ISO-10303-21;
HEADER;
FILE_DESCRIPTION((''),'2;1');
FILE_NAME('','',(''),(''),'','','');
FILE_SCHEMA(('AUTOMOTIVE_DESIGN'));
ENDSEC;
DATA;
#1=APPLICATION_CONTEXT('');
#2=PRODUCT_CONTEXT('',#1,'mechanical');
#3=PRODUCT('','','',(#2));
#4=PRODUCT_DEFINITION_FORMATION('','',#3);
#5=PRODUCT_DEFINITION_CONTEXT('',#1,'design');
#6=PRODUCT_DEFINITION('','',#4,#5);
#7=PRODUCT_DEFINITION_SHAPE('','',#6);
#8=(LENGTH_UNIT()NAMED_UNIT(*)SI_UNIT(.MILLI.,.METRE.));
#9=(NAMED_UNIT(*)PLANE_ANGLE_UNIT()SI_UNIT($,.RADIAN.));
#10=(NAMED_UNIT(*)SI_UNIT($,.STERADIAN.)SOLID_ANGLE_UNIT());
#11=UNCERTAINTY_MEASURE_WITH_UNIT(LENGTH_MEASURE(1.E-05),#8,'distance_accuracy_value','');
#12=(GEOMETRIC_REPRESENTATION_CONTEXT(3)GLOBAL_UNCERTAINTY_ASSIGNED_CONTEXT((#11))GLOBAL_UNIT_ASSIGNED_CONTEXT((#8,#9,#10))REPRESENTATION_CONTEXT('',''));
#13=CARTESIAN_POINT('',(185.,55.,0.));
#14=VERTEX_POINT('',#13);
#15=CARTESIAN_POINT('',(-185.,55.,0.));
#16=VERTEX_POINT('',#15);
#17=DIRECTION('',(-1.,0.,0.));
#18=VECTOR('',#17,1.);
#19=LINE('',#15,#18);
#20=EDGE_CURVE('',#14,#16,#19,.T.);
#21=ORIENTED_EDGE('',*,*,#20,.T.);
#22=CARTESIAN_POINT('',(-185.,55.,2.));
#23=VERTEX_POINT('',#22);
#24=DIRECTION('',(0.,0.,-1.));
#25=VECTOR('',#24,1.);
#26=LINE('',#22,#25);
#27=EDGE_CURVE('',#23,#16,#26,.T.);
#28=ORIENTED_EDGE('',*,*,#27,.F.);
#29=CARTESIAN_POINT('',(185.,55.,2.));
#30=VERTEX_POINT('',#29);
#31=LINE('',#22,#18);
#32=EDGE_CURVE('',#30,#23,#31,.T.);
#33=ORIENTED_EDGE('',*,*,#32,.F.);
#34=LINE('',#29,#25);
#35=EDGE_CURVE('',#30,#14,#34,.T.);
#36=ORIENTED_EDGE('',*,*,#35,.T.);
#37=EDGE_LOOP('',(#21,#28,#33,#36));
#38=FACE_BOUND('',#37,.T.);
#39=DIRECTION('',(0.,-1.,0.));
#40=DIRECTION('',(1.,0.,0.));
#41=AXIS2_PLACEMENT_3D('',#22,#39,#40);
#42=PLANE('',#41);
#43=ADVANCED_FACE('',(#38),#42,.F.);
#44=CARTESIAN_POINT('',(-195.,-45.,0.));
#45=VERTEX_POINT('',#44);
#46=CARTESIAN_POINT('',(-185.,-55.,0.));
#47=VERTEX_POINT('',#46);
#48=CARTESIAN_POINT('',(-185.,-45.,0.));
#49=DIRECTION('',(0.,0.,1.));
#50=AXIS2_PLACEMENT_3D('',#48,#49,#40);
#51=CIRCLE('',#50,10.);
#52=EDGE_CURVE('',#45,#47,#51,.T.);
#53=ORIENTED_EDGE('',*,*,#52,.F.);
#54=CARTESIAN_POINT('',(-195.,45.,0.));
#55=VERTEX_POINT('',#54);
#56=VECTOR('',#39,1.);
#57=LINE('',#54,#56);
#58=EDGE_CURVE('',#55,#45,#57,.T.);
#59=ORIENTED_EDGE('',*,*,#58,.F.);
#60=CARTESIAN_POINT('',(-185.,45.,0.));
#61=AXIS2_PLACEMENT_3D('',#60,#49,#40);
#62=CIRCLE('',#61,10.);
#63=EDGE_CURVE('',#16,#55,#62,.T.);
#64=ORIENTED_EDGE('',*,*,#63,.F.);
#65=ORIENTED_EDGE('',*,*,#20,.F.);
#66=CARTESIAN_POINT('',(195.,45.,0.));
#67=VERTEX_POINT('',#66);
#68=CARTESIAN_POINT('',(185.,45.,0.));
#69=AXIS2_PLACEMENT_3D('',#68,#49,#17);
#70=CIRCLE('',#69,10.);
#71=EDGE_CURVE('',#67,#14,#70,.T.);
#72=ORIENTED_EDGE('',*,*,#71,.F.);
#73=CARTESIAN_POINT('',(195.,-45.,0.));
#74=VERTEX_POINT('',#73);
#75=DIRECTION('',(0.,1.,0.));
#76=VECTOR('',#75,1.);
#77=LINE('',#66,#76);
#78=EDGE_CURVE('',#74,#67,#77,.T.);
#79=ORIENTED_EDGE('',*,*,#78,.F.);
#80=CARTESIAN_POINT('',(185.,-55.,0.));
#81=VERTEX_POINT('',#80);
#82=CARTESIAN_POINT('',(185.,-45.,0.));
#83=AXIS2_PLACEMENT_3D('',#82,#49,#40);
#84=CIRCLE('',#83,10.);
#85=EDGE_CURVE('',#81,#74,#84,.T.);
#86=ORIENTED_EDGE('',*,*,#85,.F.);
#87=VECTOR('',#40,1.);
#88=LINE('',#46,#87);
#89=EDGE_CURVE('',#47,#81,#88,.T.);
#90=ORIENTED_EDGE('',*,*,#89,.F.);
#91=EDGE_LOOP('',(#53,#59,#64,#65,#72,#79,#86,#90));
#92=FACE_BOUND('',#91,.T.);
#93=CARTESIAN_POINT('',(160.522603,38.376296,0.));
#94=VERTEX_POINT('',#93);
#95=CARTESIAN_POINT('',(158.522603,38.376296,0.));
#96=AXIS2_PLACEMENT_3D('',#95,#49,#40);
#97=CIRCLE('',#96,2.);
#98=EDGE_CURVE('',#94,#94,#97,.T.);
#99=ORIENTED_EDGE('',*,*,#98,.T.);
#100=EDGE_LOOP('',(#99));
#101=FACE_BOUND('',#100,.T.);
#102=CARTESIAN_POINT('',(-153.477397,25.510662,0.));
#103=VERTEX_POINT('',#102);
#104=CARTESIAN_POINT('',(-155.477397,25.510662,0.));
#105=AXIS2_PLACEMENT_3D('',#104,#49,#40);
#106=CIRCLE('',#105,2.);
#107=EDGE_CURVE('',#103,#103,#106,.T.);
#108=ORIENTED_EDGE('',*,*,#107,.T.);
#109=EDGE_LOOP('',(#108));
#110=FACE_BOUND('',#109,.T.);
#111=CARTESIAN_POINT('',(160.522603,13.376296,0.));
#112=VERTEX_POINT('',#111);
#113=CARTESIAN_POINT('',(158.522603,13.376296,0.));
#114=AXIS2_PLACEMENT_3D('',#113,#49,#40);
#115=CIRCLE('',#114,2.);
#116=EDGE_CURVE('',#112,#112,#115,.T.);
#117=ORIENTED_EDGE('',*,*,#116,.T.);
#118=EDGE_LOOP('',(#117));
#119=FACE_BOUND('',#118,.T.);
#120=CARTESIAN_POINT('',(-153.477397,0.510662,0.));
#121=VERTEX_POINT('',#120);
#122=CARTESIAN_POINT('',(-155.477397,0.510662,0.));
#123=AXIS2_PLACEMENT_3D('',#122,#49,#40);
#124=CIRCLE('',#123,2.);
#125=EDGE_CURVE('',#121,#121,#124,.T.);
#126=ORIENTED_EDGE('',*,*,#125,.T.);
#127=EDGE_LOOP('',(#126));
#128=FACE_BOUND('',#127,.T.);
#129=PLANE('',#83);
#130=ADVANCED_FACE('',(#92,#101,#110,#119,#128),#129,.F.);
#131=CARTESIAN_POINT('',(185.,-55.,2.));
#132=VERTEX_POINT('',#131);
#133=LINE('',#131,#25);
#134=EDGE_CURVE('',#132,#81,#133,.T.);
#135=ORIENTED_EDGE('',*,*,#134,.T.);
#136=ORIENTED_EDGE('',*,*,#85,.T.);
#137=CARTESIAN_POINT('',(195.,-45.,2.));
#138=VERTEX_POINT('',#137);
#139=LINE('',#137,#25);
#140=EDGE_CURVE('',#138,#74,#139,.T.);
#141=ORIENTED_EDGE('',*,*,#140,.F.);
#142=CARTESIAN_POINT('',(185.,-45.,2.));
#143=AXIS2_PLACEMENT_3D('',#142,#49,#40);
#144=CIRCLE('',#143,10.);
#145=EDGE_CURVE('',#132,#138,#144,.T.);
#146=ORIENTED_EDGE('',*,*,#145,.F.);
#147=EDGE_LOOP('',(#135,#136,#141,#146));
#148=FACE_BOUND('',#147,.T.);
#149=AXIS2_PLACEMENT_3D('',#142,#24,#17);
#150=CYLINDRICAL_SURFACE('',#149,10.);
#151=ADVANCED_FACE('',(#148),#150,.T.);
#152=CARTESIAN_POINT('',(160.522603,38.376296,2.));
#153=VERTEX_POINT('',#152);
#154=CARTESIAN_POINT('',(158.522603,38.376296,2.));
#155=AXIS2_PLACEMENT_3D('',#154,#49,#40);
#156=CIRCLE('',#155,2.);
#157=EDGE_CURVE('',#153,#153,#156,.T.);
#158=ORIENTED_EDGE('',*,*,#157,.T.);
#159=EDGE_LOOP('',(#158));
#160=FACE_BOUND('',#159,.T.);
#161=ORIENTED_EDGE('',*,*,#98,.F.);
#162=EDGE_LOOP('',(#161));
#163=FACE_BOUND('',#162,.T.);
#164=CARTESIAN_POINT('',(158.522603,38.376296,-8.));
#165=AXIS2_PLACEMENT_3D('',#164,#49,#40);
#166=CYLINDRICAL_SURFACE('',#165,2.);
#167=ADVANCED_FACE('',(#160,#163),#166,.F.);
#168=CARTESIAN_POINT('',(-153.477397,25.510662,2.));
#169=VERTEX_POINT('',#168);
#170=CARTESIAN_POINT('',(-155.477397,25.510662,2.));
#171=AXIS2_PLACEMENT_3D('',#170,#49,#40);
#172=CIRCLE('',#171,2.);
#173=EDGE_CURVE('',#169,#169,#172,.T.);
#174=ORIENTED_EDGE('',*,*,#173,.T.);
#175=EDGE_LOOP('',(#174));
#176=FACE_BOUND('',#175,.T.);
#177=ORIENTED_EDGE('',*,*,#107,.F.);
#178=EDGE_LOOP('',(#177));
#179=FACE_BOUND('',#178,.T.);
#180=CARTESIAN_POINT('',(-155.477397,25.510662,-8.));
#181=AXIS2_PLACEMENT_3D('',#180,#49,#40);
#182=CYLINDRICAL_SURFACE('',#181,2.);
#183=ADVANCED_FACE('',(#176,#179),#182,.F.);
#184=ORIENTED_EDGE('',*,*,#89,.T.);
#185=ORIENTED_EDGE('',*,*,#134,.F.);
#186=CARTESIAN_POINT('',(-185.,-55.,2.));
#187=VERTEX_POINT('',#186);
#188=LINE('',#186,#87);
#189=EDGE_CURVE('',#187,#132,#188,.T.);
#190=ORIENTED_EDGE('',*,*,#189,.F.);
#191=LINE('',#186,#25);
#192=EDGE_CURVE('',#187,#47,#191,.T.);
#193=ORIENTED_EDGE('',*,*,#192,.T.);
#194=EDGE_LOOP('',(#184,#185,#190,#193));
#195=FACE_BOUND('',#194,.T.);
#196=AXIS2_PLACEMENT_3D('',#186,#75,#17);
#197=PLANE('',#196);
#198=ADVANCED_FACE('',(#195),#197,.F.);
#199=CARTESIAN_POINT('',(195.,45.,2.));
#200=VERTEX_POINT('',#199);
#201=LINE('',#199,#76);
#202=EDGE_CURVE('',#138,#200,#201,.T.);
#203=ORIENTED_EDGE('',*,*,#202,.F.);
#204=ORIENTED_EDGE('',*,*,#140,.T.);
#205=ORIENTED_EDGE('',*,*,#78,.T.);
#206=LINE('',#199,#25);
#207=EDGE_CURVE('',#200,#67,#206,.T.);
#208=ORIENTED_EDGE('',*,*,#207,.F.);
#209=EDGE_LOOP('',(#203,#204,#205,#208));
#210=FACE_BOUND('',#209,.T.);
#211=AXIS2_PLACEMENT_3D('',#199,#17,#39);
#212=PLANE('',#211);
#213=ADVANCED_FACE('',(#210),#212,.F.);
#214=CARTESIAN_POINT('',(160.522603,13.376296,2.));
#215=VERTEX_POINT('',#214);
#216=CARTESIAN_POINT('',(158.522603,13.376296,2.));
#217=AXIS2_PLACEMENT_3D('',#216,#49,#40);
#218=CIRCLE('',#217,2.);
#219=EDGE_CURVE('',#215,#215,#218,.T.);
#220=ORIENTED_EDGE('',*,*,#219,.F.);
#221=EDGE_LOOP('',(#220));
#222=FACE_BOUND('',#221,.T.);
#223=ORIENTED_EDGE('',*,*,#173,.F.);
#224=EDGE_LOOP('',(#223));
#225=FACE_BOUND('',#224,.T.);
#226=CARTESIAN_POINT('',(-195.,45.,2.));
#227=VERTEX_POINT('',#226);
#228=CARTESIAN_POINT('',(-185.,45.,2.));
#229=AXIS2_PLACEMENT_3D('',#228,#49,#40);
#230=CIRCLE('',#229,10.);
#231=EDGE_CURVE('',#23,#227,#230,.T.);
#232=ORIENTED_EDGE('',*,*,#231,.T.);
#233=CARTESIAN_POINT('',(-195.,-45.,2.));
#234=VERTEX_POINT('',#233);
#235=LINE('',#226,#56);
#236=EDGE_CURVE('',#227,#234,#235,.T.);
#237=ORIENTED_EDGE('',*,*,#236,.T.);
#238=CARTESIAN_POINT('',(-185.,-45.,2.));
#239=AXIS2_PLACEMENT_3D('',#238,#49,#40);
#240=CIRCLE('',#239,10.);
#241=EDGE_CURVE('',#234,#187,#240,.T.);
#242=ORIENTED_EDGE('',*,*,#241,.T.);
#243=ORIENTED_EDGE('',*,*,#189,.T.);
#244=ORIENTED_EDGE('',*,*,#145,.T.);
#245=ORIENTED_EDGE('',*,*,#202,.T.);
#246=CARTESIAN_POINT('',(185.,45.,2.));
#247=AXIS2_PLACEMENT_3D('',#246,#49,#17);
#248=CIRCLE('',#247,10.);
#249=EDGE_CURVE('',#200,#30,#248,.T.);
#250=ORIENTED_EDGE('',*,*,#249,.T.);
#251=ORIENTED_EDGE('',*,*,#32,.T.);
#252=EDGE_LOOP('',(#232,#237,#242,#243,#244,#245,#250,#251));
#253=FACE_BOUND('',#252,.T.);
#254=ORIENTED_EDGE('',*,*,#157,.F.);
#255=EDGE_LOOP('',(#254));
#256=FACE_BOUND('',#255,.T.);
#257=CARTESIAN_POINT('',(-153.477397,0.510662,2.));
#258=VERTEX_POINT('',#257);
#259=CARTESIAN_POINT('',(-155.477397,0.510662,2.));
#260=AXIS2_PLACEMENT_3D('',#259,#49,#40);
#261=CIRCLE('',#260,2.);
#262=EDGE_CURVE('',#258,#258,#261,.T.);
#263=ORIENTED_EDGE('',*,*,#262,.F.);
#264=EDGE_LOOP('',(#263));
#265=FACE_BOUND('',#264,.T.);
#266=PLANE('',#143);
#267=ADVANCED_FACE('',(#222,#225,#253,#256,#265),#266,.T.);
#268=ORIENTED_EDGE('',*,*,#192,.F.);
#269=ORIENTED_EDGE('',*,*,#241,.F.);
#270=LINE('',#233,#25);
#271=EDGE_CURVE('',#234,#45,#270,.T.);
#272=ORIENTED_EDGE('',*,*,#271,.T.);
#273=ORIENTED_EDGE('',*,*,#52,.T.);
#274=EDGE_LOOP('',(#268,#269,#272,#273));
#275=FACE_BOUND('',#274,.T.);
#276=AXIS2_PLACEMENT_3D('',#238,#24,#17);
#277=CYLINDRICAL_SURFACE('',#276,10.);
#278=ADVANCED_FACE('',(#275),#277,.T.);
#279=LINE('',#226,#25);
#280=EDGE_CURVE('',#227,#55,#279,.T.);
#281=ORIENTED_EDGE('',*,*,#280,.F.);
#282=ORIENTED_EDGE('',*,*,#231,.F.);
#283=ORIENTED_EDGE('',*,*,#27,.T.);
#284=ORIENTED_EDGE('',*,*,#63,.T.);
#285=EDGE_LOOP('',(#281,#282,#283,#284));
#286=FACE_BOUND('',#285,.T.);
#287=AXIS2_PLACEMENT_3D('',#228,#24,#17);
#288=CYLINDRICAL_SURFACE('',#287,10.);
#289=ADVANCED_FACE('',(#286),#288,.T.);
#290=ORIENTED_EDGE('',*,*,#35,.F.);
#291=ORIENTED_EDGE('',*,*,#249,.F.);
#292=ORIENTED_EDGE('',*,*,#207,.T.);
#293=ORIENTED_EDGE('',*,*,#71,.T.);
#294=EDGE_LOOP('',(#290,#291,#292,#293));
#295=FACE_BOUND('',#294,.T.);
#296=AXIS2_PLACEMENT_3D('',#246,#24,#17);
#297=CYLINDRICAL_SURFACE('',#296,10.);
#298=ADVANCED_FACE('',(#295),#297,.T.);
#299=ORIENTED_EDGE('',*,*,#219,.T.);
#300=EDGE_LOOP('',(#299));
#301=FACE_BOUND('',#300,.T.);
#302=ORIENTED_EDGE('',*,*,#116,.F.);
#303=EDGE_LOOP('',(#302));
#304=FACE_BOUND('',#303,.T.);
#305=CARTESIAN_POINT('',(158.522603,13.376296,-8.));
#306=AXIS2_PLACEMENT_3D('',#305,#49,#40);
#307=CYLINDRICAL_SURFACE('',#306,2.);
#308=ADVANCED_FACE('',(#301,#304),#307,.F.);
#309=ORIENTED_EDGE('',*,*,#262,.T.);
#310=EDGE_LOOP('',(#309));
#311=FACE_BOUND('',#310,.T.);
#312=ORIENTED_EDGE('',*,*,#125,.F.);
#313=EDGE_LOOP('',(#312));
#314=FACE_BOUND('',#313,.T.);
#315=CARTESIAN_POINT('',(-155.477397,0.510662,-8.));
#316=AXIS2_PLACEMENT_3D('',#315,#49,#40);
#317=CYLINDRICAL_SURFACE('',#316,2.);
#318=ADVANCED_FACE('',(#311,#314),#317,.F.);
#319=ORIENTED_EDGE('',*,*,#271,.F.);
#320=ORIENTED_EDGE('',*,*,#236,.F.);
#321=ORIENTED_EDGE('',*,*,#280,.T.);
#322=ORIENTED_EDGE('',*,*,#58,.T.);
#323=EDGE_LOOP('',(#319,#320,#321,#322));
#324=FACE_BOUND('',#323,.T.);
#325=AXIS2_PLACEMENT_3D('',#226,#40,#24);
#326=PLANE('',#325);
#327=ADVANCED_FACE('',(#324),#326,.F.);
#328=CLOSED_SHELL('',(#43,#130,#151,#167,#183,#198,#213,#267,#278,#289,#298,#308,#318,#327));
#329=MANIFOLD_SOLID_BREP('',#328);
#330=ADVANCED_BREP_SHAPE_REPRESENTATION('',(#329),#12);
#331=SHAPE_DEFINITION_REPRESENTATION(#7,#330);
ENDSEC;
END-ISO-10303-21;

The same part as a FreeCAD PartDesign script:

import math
import FreeCAD as App
import Part
import Sketcher
from FreeCAD import Vector
Q = App.Units.Quantity

doc = App.newDocument("Part")
params = doc.addObject("Spreadsheet::Sheet", "Params")
for row, (alias, value) in enumerate([
    ("sketch1_radius", "10 mm"),
    ("sketch1_width", "370 mm"),
    ("sketch1_height", "90 mm"),
    ("pad1_length", "2 mm"),
    ("sketch2_diameter", "4 mm"),
    ("pocket1_length", "10 mm"),
], start=1):
    params.set(f"A{row}", alias)
    params.set(f"B{row}", "=" + value)
    params.setAlias(f"B{row}", alias)

body = doc.addObject("PartDesign::Body", "Body")

# Sketch on XY plane
sketch1 = body.newObject("Sketcher::SketchObject", "Sketch")
sketch1.AttachmentSupport = (doc.getObject("XY_Plane"), [""])
sketch1.MapMode = "FlatFace"
sketch1.addGeometry(Part.LineSegment(Vector(185, 55, 0), Vector(-185, 55, 0)), False)
sketch1.addGeometry(Part.ArcOfCircle(Part.Circle(Vector(-185, 45, 0), Vector(0, 0, 1), 10), math.radians(90), math.radians(180)), False)
sketch1.addGeometry(Part.LineSegment(Vector(-195, 45, 0), Vector(-195, -45, 0)), False)
sketch1.addGeometry(Part.ArcOfCircle(Part.Circle(Vector(-185, -45, 0), Vector(0, 0, 1), 10), math.radians(180), math.radians(270)), False)
sketch1.addGeometry(Part.LineSegment(Vector(-185, -55, 0), Vector(185, -55, 0)), False)
sketch1.addGeometry(Part.ArcOfCircle(Part.Circle(Vector(185, -45, 0), Vector(0, 0, 1), 10), math.radians(-90), math.radians(0)), False)
sketch1.addGeometry(Part.LineSegment(Vector(195, -45, 0), Vector(195, 45, 0)), False)
sketch1.addGeometry(Part.ArcOfCircle(Part.Circle(Vector(185, 45, 0), Vector(0, 0, 1), 10), math.radians(0), math.radians(90)), False)
sketch1.addConstraint(Sketcher.Constraint("Tangent", 0, 2, 1, 1))
sketch1.addConstraint(Sketcher.Constraint("Tangent", 1, 2, 2, 1))
sketch1.addConstraint(Sketcher.Constraint("Tangent", 2, 2, 3, 1))
sketch1.addConstraint(Sketcher.Constraint("Tangent", 3, 2, 4, 1))
sketch1.addConstraint(Sketcher.Constraint("Tangent", 4, 2, 5, 1))
sketch1.addConstraint(Sketcher.Constraint("Tangent", 5, 2, 6, 1))
sketch1.addConstraint(Sketcher.Constraint("Tangent", 6, 2, 7, 1))
sketch1.addConstraint(Sketcher.Constraint("Tangent", 7, 2, 0, 1))
sketch1.addConstraint(Sketcher.Constraint("Horizontal", 0))
sketch1.addConstraint(Sketcher.Constraint("Vertical", 2))
sketch1.addConstraint(Sketcher.Constraint("Horizontal", 4))
sketch1.addConstraint(Sketcher.Constraint("Vertical", 6))
sketch1.addConstraint(Sketcher.Constraint("Equal", 1, 3))
sketch1.addConstraint(Sketcher.Constraint("Equal", 3, 5))
sketch1.addConstraint(Sketcher.Constraint("Equal", 5, 7))
sketch1.addConstraint(Sketcher.Constraint("Symmetric", 1, 3, 5, 3, -1, 1))
sketch1.addConstraint(Sketcher.Constraint("Radius", 1, Q("10 mm")))
sketch1.addConstraint(Sketcher.Constraint("DistanceX", 0, 2, 0, 1, Q("370 mm")))
sketch1.addConstraint(Sketcher.Constraint("DistanceY", 2, 2, 2, 1, Q("90 mm")))
sketch1.setExpression("Constraints[16]", "Params.sketch1_radius")
sketch1.setExpression("Constraints[17]", "Params.sketch1_width")
sketch1.setExpression("Constraints[18]", "Params.sketch1_height")
pad1 = body.newObject("PartDesign::Pad", "Pad")
pad1.Profile = sketch1
pad1.setExpression("Length", "Params.pad1_length")

# Sketch on XY plane
sketch2 = body.newObject("Sketcher::SketchObject", "Sketch001")
sketch2.AttachmentSupport = (doc.getObject("XY_Plane"), [""])
sketch2.MapMode = "FlatFace"
sketch2.AttachmentOffset = App.Placement(Vector(0, 0, 2), App.Rotation())
sketch2.addGeometry(Part.Circle(Vector(158.522603, 13.376296, 0), Vector(0, 0, 1), 2), False)
sketch2.addGeometry(Part.Circle(Vector(158.522603, 38.376296, 0), Vector(0, 0, 1), 2), False)
sketch2.addGeometry(Part.Circle(Vector(-155.477397, 25.510662, 0), Vector(0, 0, 1), 2), False)
sketch2.addGeometry(Part.Circle(Vector(-155.477397, 0.510662, 0), Vector(0, 0, 1), 2), False)
sketch2.addConstraint(Sketcher.Constraint("Equal", 0, 1))
sketch2.addConstraint(Sketcher.Constraint("Equal", 1, 2))
sketch2.addConstraint(Sketcher.Constraint("Equal", 2, 3))
sketch2.addConstraint(Sketcher.Constraint("Vertical", 0, 3, 1, 3))
sketch2.addConstraint(Sketcher.Constraint("Vertical", 2, 3, 3, 3))
sketch2.addConstraint(Sketcher.Constraint("Diameter", 0, Q("4 mm")))
sketch2.addConstraint(Sketcher.Constraint("DistanceY", 0, 3, 1, 3, Q("25 mm")))
sketch2.addConstraint(Sketcher.Constraint("DistanceX", 2, 3, 0, 3, Q("314 mm")))
sketch2.addConstraint(Sketcher.Constraint("DistanceY", 3, 3, 2, 3, Q("25 mm")))
sketch2.addConstraint(Sketcher.Constraint("DistanceY", -1, 1, 2, 3, Q("25.510662 mm")))
sketch2.addConstraint(Sketcher.Constraint("DistanceX", -1, 1, 0, 3, Q("158.522603 mm")))
sketch2.addConstraint(Sketcher.Constraint("DistanceY", -1, 1, 0, 3, Q("13.376296 mm")))
sketch2.setExpression("Constraints[5]", "Params.sketch2_diameter")
pocket1 = body.newObject("PartDesign::Pocket", "Pocket")
pocket1.Profile = sketch2
pocket1.setExpression("Length", "Params.pocket1_length")

doc.recompute()
